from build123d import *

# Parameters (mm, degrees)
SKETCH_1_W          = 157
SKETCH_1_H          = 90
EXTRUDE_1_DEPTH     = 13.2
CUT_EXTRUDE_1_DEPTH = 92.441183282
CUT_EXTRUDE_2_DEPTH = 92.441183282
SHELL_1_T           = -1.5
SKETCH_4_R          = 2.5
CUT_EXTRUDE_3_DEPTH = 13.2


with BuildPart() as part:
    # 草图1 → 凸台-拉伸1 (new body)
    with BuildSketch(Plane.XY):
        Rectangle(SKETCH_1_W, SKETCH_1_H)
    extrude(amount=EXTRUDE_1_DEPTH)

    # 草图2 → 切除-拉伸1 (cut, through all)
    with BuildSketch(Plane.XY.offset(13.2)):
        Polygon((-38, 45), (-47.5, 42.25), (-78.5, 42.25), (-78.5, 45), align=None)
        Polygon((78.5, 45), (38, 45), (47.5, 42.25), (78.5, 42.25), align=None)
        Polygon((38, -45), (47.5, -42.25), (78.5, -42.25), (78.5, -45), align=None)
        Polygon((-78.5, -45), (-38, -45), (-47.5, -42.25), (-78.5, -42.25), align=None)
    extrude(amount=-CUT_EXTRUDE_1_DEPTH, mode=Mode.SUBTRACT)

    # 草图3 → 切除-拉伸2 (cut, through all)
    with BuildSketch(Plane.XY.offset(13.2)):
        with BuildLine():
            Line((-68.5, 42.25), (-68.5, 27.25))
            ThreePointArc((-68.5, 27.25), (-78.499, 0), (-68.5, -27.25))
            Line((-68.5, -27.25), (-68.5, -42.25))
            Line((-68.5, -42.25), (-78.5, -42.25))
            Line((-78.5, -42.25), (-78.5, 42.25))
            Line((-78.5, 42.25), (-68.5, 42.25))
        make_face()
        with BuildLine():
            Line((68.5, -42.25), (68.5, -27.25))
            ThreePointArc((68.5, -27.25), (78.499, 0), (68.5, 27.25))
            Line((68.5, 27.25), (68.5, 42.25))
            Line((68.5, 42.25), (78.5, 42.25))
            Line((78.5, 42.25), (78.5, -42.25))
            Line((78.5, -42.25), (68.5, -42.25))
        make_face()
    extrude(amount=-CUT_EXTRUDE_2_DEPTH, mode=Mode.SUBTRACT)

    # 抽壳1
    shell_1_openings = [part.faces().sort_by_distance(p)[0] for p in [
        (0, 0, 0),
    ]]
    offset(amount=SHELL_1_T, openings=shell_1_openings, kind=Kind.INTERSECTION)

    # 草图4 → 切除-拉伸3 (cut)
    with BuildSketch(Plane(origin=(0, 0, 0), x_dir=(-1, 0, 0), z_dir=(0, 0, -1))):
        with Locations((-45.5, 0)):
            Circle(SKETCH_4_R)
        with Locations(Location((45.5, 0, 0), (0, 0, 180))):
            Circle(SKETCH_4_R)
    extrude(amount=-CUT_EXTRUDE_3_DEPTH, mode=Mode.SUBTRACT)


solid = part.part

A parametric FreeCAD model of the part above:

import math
import FreeCAD as App
import Part
import Sketcher

V = App.Vector


def faces_at(feature, points):
    """Names of the faces that lie closest to the given points."""
    faces = feature.Shape.Faces
    near = lambda p: min(range(len(faces)), key=lambda i: faces[i].distToShape(Part.Vertex(*p))[0])
    return sorted({f"Face{near(p) + 1}" for p in points})

doc = App.newDocument("Part")
params = doc.addObject("Spreadsheet::Sheet", "Params")
for row, (alias, value) in enumerate([
    ("sketch1_width", "157 mm"),
    ("sketch1_height", "90 mm"),
    ("pad1_length", "13.2 mm"),
    ("sketch2_width", "31 mm"),
    ("sketch2_width2", "40.5 mm"),
    ("sketch2_height", "2.75 mm"),
    ("sketch3_width", "10 mm"),
    ("sketch3_height", "15 mm"),
    ("sketch3_height2", "84.5 mm"),
    ("thickness_wall", "1.5 mm"),
    ("sketch4_diameter", "5 mm"),
    ("pocket3_length", "13.2 mm"),
], start=1):
    params.set(f"A{row}", alias)
    params.set(f"B{row}", "=" + value)
    params.setAlias(f"B{row}", alias)

body = doc.addObject("PartDesign::Body", "Body")

# Sketch on XY plane
sketch1 = doc.addObject("Sketcher::SketchObject", "Sketch")
body.addObject(sketch1)
sketch1.AttachmentSupport = (doc.XY_Plane, [""])
sketch1.MapMode = "FlatFace"
sketch1.addGeometry([
    Part.LineSegment(V(-78.5, 45, 0), V(-78.5, -45, 0)),
    Part.LineSegment(V(-78.5, -45, 0), V(78.5, -45, 0)),
    Part.LineSegment(V(78.5, -45, 0), V(78.5, 45, 0)),
    Part.LineSegment(V(78.5, 45, 0), V(-78.5, 45, 0)),
], False)
sketch1.addConstraint([
    Sketcher.Constraint("Coincident", 0, 2, 1, 1),
    Sketcher.Constraint("Coincident", 1, 2, 2, 1),
    Sketcher.Constraint("Coincident", 2, 2, 3, 1),
    Sketcher.Constraint("Coincident", 3, 2, 0, 1),
    Sketcher.Constraint("Vertical", 0),
    Sketcher.Constraint("Horizontal", 1),
    Sketcher.Constraint("Vertical", 2),
    Sketcher.Constraint("Horizontal", 3),
    Sketcher.Constraint("Symmetric", 0, 2, 2, 2, -1, 1),
    Sketcher.Constraint("DistanceX", 1, 1, 1, 2, 157.0),
    Sketcher.Constraint("DistanceY", 0, 2, 0, 1, 90.0),
])
sketch1.setExpression("Constraints[9]", "Params.sketch1_width")
sketch1.setExpression("Constraints[10]", "Params.sketch1_height")
pad1 = doc.addObject("PartDesign::Pad", "Pad")
body.addObject(pad1)
pad1.Profile = sketch1
pad1.setExpression("Length", "Params.pad1_length")

# Sketch on XY plane
sketch2 = doc.addObject("Sketcher::SketchObject", "Sketch001")
body.addObject(sketch2)
sketch2.AttachmentSupport = (doc.XY_Plane, [""])
sketch2.MapMode = "FlatFace"
sketch2.AttachmentOffset = App.Placement(V(0, 0, 13.2), App.Rotation())
sketch2.addGeometry([
    Part.LineSegment(V(-47.5, 42.25, 0), V(-38, 45, 0)),  # 0
    Part.LineSegment(V(-38, 45, 0), V(-78.5, 45, 0)),  # 1
    Part.LineSegment(V(-78.5, 45, 0), V(-78.5, 42.25, 0)),  # 2
    Part.LineSegment(V(-78.5, 42.25, 0), V(-47.5, 42.25, 0)),  # 3
    Part.LineSegment(V(78.5, 45, 0), V(38, 45, 0)),  # 4
    Part.LineSegment(V(38, 45, 0), V(47.5, 42.25, 0)),  # 5
    Part.LineSegment(V(47.5, 42.25, 0), V(78.5, 42.25, 0)),  # 6
    Part.LineSegment(V(78.5, 42.25, 0), V(78.5, 45, 0)),  # 7
    Part.LineSegment(V(47.5, -42.25, 0), V(38, -45, 0)),  # 8
    Part.LineSegment(V(38, -45, 0), V(78.5, -45, 0)),  # 9
    Part.LineSegment(V(78.5, -45, 0), V(78.5, -42.25, 0)),  # 10
    Part.LineSegment(V(78.5, -42.25, 0), V(47.5, -42.25, 0)),  # 11
    Part.LineSegment(V(-78.5, -45, 0), V(-38, -45, 0)),  # 12
    Part.LineSegment(V(-38, -45, 0), V(-47.5, -42.25, 0)),  # 13
    Part.LineSegment(V(-47.5, -42.25, 0), V(-78.5, -42.25, 0)),  # 14
    Part.LineSegment(V(-78.5, -42.25, 0), V(-78.5, -45, 0)),  # 15
], False)
sketch2.addConstraint([
    Sketcher.Constraint("Coincident", 0, 2, 1, 1),
    Sketcher.Constraint("Coincident", 1, 2, 2, 1),
    Sketcher.Constraint("Coincident", 2, 2, 3, 1),
    Sketcher.Constraint("Coincident", 3, 2, 0, 1),
    Sketcher.Constraint("Coincident", 4, 2, 5, 1),
    Sketcher.Constraint("Coincident", 5, 2, 6, 1),
    Sketcher.Constraint("Coincident", 6, 2, 7, 1),
    Sketcher.Constraint("Coincident", 7, 2, 4, 1),
    Sketcher.Constraint("Coincident", 8, 2, 9, 1),
    Sketcher.Constraint("Coincident", 9, 2, 10, 1),
    Sketcher.Constraint("Coincident", 10, 2, 11, 1),
    Sketcher.Constraint("Coincident", 11, 2, 8, 1),
    Sketcher.Constraint("Coincident", 12, 2, 13, 1),
    Sketcher.Constraint("Coincident", 13, 2, 14, 1),
    Sketcher.Constraint("Coincident", 14, 2, 15, 1),
    Sketcher.Constraint("Coincident", 15, 2, 12, 1),
    Sketcher.Constraint("Horizontal", 1),
    Sketcher.Constraint("Vertical", 2),
    Sketcher.Constraint("Horizontal", 3),
    Sketcher.Constraint("Horizontal", 4),
    Sketcher.Constraint("Horizontal", 6),
    Sketcher.Constraint("Vertical", 7),
    Sketcher.Constraint("Horizontal", 9),
    Sketcher.Constraint("Vertical", 10),
    Sketcher.Constraint("Horizontal", 11),
    Sketcher.Constraint("Horizontal", 12),
    Sketcher.Constraint("Horizontal", 14),
    Sketcher.Constraint("Vertical", 15),
    Sketcher.Constraint("Symmetric", 0, 2, 8, 2, -1, 1),
    Sketcher.Constraint("Symmetric", 2, 2, 10, 2, -1, 1),
    Sketcher.Constraint("Symmetric", 4, 2, 12, 2, -1, 1),
    Sketcher.Constraint("Symmetric", 5, 2, 13, 2, -1, 1),
    Sketcher.Constraint("Symmetric", 0, 2, 4, 2, -2),
    Sketcher.Constraint("Symmetric", 3, 2, 5, 2, -2),
    Sketcher.Constraint("Parallel", 0, 8),
    Sketcher.Constraint("Vertical", 7, 2, 9, 2),
    Sketcher.Constraint("Vertical", 2, 2, 14, 2),
    Sketcher.Constraint("DistanceX", 3, 1, 3, 2, 31.0),
    Sketcher.Constraint("DistanceX", 1, 2, 1, 1, 40.5),
    Sketcher.Constraint("DistanceX", 0, 2, -1, 1, 38.0),
    Sketcher.Constraint("DistanceY", -1, 1, 0, 2, 45.0),
    Sketcher.Constraint("DistanceY", 2, 2, 2, 1, 2.75),
])
sketch2.setExpression("Constraints[37]", "Params.sketch2_width")
sketch2.setExpression("Constraints[38]", "Params.sketch2_width2")
sketch2.setExpression("Constraints[41]", "Params.sketch2_height")
pocket1 = doc.addObject("PartDesign::Pocket", "Pocket")
body.addObject(pocket1)
pocket1.Profile = sketch2
pocket1.Type = "ThroughAll"

# Sketch on XY plane
sketch3 = doc.addObject("Sketcher::SketchObject", "Sketch002")
body.addObject(sketch3)
sketch3.AttachmentSupport = (doc.XY_Plane, [""])
sketch3.MapMode = "FlatFace"
sketch3.AttachmentOffset = App.Placement(V(0, 0, 13.2), App.Rotation())
sketch3.addGeometry([
    Part.LineSegment(V(-68.5, 27.25, 0), V(-68.5, 42.25, 0)),  # 0
    Part.LineSegment(V(-68.5, 42.25, 0), V(-78.5, 42.25, 0)),  # 1
    Part.LineSegment(V(-78.5, 42.25, 0), V(-78.5, -42.25, 0)),  # 2
    Part.LineSegment(V(-78.5, -42.25, 0), V(-68.5, -42.25, 0)),  # 3
    Part.LineSegment(V(-68.5, -42.25, 0), V(-68.5, -27.25, 0)),  # 4
    Part.ArcOfCircle(Part.Circle(V(-36.367662, 0, 0), V(0, 0, 1), 42.131338), math.radians(139.700212), math.radians(220.299788)),  # 5
    Part.LineSegment(V(68.5, -27.25, 0), V(68.5, -42.25, 0)),  # 6
    Part.LineSegment(V(68.5, -42.25, 0), V(78.5, -42.25, 0)),  # 7
    Part.LineSegment(V(78.5, -42.25, 0), V(78.5, 42.25, 0)),  # 8
    Part.LineSegment(V(78.5, 42.25, 0), V(68.5, 42.25, 0)),  # 9
    Part.LineSegment(V(68.5, 42.25, 0), V(68.5, 27.25, 0)),  # 10
    Part.ArcOfCircle(Part.Circle(V(36.367662, 0, 0), V(0, 0, 1), 42.131338), math.radians(-40.299788), math.radians(40.299788)),  # 11
], False)
sketch3.addConstraint([
    Sketcher.Constraint("Coincident", 0, 2, 1, 1),
    Sketcher.Constraint("Coincident", 1, 2, 2, 1),
    Sketcher.Constraint("Coincident", 2, 2, 3, 1),
    Sketcher.Constraint("Coincident", 3, 2, 4, 1),
    Sketcher.Constraint("Coincident", 4, 2, 5, 2),
    Sketcher.Constraint("Coincident", 5, 1, 0, 1),
    Sketcher.Constraint("Coincident", 6, 2, 7, 1),
    Sketcher.Constraint("Coincident", 7, 2, 8, 1),
    Sketcher.Constraint("Coincident", 8, 2, 9, 1),
    Sketcher.Constraint("Coincident", 9, 2, 10, 1),
    Sketcher.Constraint("Coincident", 10, 2, 11, 2),
    Sketcher.Constraint("Coincident", 11, 1, 6, 1),
    Sketcher.Constraint("Vertical", 0),
    Sketcher.Constraint("Horizontal", 1),
    Sketcher.Constraint("Vertical", 2),
    Sketcher.Constraint("Horizontal", 3),
    Sketcher.Constraint("Vertical", 4),
    Sketcher.Constraint("Vertical", 6),
    Sketcher.Constraint("Horizontal", 7),
    Sketcher.Constraint("Vertical", 8),
    Sketcher.Constraint("Horizontal", 9),
    Sketcher.Constraint("Vertical", 10),
    Sketcher.Constraint("Equal", 5, 11),
    Sketcher.Constraint("Symmetric", 5, 3, 11, 3, -1, 1),
    Sketcher.Constraint("Symmetric", 0, 2, 6, 2, -1, 1),
    Sketcher.Constraint("Symmetric", 2, 2, 8, 2, -1, 1),
    Sketcher.Constraint("Symmetric", 3, 2, 6, 2, -2),
    Sketcher.Constraint("Symmetric", 5, 1, 10, 2, -2),
    Sketcher.Constraint("DistanceX", 1, 2, 1, 1, 10.0),
    Sketcher.Constraint("DistanceY", 0, 1, 0, 2, 15.0),
    Sketcher.Constraint("DistanceY", 2, 2, 2, 1, 84.5),
    Sketcher.Constraint("DistanceX", 3, 2, 6, 2, 137.0),
    Sketcher.Constraint("Radius", 5, 42.131338),
])
sketch3.setExpression("Constraints[28]", "Params.sketch3_width")
sketch3.setExpression("Constraints[29]", "Params.sketch3_height")
sketch3.setExpression("Constraints[30]", "Params.sketch3_height2")
pocket2 = doc.addObject("PartDesign::Pocket", "Pocket001")
body.addObject(pocket2)
pocket2.Profile = sketch3
pocket2.Type = "ThroughAll"
doc.recompute()

thickness = doc.addObject("PartDesign::Thickness", "Thickness")
body.addObject(thickness)
thickness.Base = (pocket2, faces_at(pocket2, [(0, 0, 0)]))
thickness.setExpression("Value", "Params.thickness_wall")
thickness.Reversed = True
thickness.Join = "Intersection"

# Sketch on XY plane
sketch4 = doc.addObject("Sketcher::SketchObject", "Sketch003")
body.addObject(sketch4)
sketch4.AttachmentSupport = (doc.XY_Plane, [""])
sketch4.MapMode = "FlatFace"
sketch4.addGeometry([
    Part.Circle(V(45.5, 0, 0), V(0, 0, 1), 2.5),
    Part.Circle(V(-45.5, 0, 0), V(0, 0, 1), 2.5),
], False)
sketch4.addConstraint([
    Sketcher.Constraint("Equal", 0, 1),
    Sketcher.Constraint("Symmetric", 0, 3, 1, 3, -1, 1),
    Sketcher.Constraint("PointOnObject", 0, 3, -1),
    Sketcher.Constraint("Diameter", 0, 5.0),
    Sketcher.Constraint("DistanceX", 1, 3, 0, 3, 91.0),
])
sketch4.setExpression("Constraints[3]", "Params.sketch4_diameter")
pocket3 = doc.addObject("PartDesign::Pocket", "Pocket002")
body.addObject(pocket3)
pocket3.Profile = sketch4
pocket3.setExpression("Length", "Params.pocket3_length")
pocket3.Reversed = True

doc.recompute()
